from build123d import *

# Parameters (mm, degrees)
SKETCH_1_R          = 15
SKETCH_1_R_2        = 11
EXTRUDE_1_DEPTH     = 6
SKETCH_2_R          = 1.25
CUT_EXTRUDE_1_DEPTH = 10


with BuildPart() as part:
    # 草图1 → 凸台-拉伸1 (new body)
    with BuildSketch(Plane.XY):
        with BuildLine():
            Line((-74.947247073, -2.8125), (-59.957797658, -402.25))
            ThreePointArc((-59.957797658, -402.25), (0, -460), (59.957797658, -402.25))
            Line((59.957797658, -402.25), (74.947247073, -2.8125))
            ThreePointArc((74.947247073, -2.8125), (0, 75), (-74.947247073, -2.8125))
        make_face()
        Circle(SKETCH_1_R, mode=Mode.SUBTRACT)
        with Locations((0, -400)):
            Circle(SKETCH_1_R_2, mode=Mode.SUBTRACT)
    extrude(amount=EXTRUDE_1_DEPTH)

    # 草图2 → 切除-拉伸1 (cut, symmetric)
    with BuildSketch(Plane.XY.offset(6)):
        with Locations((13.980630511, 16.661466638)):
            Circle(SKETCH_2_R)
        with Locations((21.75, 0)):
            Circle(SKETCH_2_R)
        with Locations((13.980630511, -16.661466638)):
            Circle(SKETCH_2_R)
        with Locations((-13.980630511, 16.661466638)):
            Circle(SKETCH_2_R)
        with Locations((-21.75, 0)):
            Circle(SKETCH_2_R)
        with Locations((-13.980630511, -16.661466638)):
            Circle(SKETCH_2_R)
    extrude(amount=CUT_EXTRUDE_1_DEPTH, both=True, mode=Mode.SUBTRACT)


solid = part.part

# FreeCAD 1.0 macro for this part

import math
import FreeCAD as App
import Part
import Sketcher

doc = App.newDocument("Part")
body = doc.addObject("PartDesign::Body", "Body")

sketch1 = doc.addObject("Sketcher::SketchObject", "Sketch")
body.addObject(sketch1)
sketch1.AttachmentSupport = (doc.XY_Plane, [""])
sketch1.MapMode = "FlatFace"
sketch1.addGeometry([
    Part.LineSegment(App.Vector(-75, -3, 0), App.Vector(-60, -402, 0)),
    Part.ArcOfCircle(Part.Circle(App.Vector(0, -400, 0), App.Vector(0, 0, 1), 60), math.radians(-178), math.radians(-2)),
    Part.LineSegment(App.Vector(60, -402, 0), App.Vector(75, -3, 0)),
    Part.ArcOfCircle(Part.Circle(App.Vector(0, 0, 0), App.Vector(0, 0, 1), 75), math.radians(-2), math.radians(182)),
    Part.Circle(App.Vector(0, -400, 0), App.Vector(0, 0, 1), 11),
    Part.Circle(App.Vector(0, 0, 0), App.Vector(0, 0, 1), 15),
], False)
sketch1.addConstraint([
    Sketcher.Constraint("Tangent", 0, 2, 1, 1),
    Sketcher.Constraint("Tangent", 1, 2, 2, 1),
    Sketcher.Constraint("Tangent", 2, 2, 3, 1),
    Sketcher.Constraint("Tangent", 3, 2, 0, 1),
    Sketcher.Constraint("Coincident", 3, 3, -1, 1),
    Sketcher.Constraint("Coincident", 5, 3, -1, 1),
    Sketcher.Constraint("Coincident", 4, 3, 1, 3),
    Sketcher.Constraint("PointOnObject", 1, 3, -2),
    Sketcher.Constraint("Diameter", 4, 22.0),
    Sketcher.Constraint("Diameter", 5, 30.0),
    Sketcher.Constraint("Radius", 1, 60.0),
    Sketcher.Constraint("Radius", 3, 75.0),
    Sketcher.Constraint("DistanceY", 1, 3, -1, 1, 400.0),
])
pad1 = doc.addObject("PartDesign::Pad", "Pad")
body.addObject(pad1)
pad1.Profile = sketch1
pad1.Length = 6

sketch2 = doc.addObject("Sketcher::SketchObject", "Sketch001")
body.addObject(sketch2)
sketch2.AttachmentSupport = (doc.XY_Plane, [""])
sketch2.MapMode = "FlatFace"
sketch2.AttachmentOffset = App.Placement(App.Vector(0, 0, 6), App.Rotation())
sketch2.addGeometry([
    Part.Circle(App.Vector(14, 16.7, 0), App.Vector(0, 0, 1), 1.2),
    Part.Circle(App.Vector(21.8, 0, 0), App.Vector(0, 0, 1), 1.2),
    Part.Circle(App.Vector(14, -16.7, 0), App.Vector(0, 0, 1), 1.2),
    Part.Circle(App.Vector(-14, 16.7, 0), App.Vector(0, 0, 1), 1.2),
    Part.Circle(App.Vector(-21.8, 0, 0), App.Vector(0, 0, 1), 1.2),
    Part.Circle(App.Vector(-14, -16.7, 0), App.Vector(0, 0, 1), 1.2),
], False)
sketch2.addConstraint([
    Sketcher.Constraint("Equal", 0, 1),
    Sketcher.Constraint("Equal", 1, 2),
    Sketcher.Constraint("Equal", 2, 3),
    Sketcher.Constraint("Equal", 3, 4),
    Sketcher.Constraint("Equal", 4, 5),
    Sketcher.Constraint("Symmetric", 2, 3, 3, 3, -1, 1),
    Sketcher.Constraint("Symmetric", 1, 3, 4, 3, -1, 1),
    Sketcher.Constraint("Symmetric", 0, 3, 5, 3, -1, 1),
    Sketcher.Constraint("Symmetric", 0, 3, 3, 3, -2),
    Sketcher.Constraint("PointOnObject", 1, 3, -1),
    Sketcher.Constraint("Diameter", 0, 2.5),
    Sketcher.Constraint("DistanceX", 4, 3, 1, 3, 43.5),
    Sketcher.Constraint("DistanceX", -1, 1, 0, 3, 13.980631),
    Sketcher.Constraint("DistanceY", -1, 1, 0, 3, 16.661467),
])
pocket1 = doc.addObject("PartDesign::Pocket", "Pocket")
body.addObject(pocket1)
pocket1.Profile = sketch2
pocket1.Length = 20
pocket1.Midplane = True

doc.recompute()
